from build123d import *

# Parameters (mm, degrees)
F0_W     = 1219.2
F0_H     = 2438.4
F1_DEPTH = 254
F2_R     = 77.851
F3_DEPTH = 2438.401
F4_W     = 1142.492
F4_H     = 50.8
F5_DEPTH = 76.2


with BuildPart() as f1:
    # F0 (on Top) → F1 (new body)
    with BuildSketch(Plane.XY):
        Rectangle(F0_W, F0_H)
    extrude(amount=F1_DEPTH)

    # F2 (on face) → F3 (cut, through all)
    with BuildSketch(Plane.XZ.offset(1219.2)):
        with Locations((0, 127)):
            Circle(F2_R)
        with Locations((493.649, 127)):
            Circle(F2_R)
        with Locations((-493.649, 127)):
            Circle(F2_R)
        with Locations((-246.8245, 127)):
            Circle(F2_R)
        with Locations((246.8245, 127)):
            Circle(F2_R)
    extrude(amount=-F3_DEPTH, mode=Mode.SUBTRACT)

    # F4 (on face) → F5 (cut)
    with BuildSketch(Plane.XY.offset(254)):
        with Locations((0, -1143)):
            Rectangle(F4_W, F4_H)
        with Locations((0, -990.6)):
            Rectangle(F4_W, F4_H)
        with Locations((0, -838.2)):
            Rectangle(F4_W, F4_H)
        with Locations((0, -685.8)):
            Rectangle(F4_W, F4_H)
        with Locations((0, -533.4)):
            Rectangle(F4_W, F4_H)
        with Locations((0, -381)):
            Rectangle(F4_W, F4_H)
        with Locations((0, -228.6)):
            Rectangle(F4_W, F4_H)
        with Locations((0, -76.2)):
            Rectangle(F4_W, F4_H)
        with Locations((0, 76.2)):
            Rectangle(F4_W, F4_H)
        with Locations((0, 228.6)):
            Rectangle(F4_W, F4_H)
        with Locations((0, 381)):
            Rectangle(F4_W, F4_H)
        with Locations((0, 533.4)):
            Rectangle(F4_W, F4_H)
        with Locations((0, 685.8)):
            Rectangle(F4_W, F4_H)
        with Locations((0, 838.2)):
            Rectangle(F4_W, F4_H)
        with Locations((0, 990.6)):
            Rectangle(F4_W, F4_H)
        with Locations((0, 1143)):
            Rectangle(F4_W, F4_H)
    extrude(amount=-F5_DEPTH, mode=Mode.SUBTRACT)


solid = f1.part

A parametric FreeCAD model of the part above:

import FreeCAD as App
import Part
import Sketcher

V = App.Vector
Q = App.Units.Quantity


def add_polygon(sketch, points):
    """Adds a closed chain of lines whose ends are joined by coincident constraints."""
    first, n = sketch.GeometryCount, len(points)
    for a, b in zip(points, points[1:] + points[:1]):
        sketch.addGeometry(Part.LineSegment(App.Vector(*a, 0), App.Vector(*b, 0)), False)
    for i in range(n):
        sketch.addConstraint(Sketcher.Constraint("Coincident", first + i, 2, first + (i + 1) % n, 1))

doc = App.newDocument("Part")
params = doc.addObject("Spreadsheet::Sheet", "Params")
for row, (alias, value) in enumerate([
    ("sketch1_width", "48 in"),
    ("sketch1_height", "96 in"),
    ("pad1_length", "10 in"),
    ("sketch2_diameter", "6.13 in"),
    ("sketch3_height", "2 in"),
    ("sketch3_width", "44.98 in"),
    ("pocket2_length", "3 in"),
], start=1):
    params.set(f"A{row}", alias)
    params.set(f"B{row}", "=" + value)
    params.setAlias(f"B{row}", alias)

body = doc.addObject("PartDesign::Body", "Body")

# Sketch on XY plane
sketch1 = doc.addObject("Sketcher::SketchObject", "Sketch")
body.addObject(sketch1)
sketch1.AttachmentSupport = (doc.XY_Plane, [""])
sketch1.MapMode = "FlatFace"
add_polygon(sketch1, [(-610, 1219), (-610, -1219), (610, -1219), (610, 1219)])  # lines 0-3
sketch1.addConstraint([
    Sketcher.Constraint("Vertical", 0),
    Sketcher.Constraint("Horizontal", 1),
    Sketcher.Constraint("Vertical", 2),
    Sketcher.Constraint("Horizontal", 3),
    Sketcher.Constraint("Symmetric", 0, 2, 2, 2, -1, 1),
    Sketcher.Constraint("DistanceX", 1, 1, 1, 2, Q("48 in")),
    Sketcher.Constraint("DistanceY", 0, 2, 0, 1, Q("96 in")),
])
sketch1.setExpression("Constraints[9]", "Params.sketch1_width")
sketch1.setExpression("Constraints[10]", "Params.sketch1_height")
pad1 = doc.addObject("PartDesign::Pad", "Pad")
body.addObject(pad1)
pad1.Profile = sketch1
pad1.setExpression("Length", "Params.pad1_length")

# Sketch on XZ plane
sketch2 = doc.addObject("Sketcher::SketchObject", "Sketch001")
body.addObject(sketch2)
sketch2.AttachmentSupport = (doc.XZ_Plane, [""])
sketch2.MapMode = "FlatFace"
sketch2.AttachmentOffset = App.Placement(V(0, 0, 48 * 25.4), App.Rotation())
sketch2.addGeometry([
    Part.Circle(V(0, 127, 0), V(0, 0, 1), 78),  # 0
    Part.Circle(V(494, 127, 0), V(0, 0, 1), 78),  # 1
    Part.Circle(V(-494, 127, 0), V(0, 0, 1), 78),  # 2
    Part.Circle(V(-247, 127, 0), V(0, 0, 1), 78),  # 3
    Part.Circle(V(247, 127, 0), V(0, 0, 1), 78),  # 4
], False)
sketch2.addConstraint([
    Sketcher.Constraint("Equal", 0, 1),
    Sketcher.Constraint("Equal", 1, 2),
    Sketcher.Constraint("Equal", 2, 3),
    Sketcher.Constraint("Equal", 3, 4),
    Sketcher.Constraint("Symmetric", 1, 3, 2, 3, -2),
    Sketcher.Constraint("Symmetric", 3, 3, 4, 3, -2),
    Sketcher.Constraint("PointOnObject", 0, 3, -2),
    Sketcher.Constraint("Horizontal", 0, 3, 1, 3),
    Sketcher.Constraint("Horizontal", 2, 3, 3, 3),
    Sketcher.Constraint("Diameter", 0, Q("6.13 in")),
    Sketcher.Constraint("DistanceY", -1, 1, 0, 3, Q("5 in")),
    Sketcher.Constraint("DistanceX", 2, 3, 1, 3, Q("38.87 in")),
    Sketcher.Constraint("DistanceX", 3, 3, 4, 3, Q("19.435 in")),
])
sketch2.setExpression("Constraints[9]", "Params.sketch2_diameter")
pocket1 = doc.addObject("PartDesign::Pocket", "Pocket")
body.addObject(pocket1)
pocket1.Profile = sketch2
pocket1.Type = "ThroughAll"

# Sketch on XY plane
sketch3 = doc.addObject("Sketcher::SketchObject", "Sketch002")
body.addObject(sketch3)
sketch3.AttachmentSupport = (doc.XY_Plane, [""])
sketch3.MapMode = "FlatFace"
sketch3.AttachmentOffset = App.Placement(V(0, 0, 10 * 25.4), App.Rotation())
add_polygon(sketch3, [(-571, -1118), (-571, -1168), (571, -1168), (571, -1118)])  # lines 0-3
add_polygon(sketch3, [(-571, -965), (-571, -1016), (571, -1016), (571, -965)])  # lines 4-7
add_polygon(sketch3, [(-571, -813), (-571, -864), (571, -864), (571, -813)])  # lines 8-11
add_polygon(sketch3, [(-571, -660), (-571, -711), (571, -711), (571, -660)])  # lines 12-15
add_polygon(sketch3, [(-571, -508), (-571, -559), (571, -559), (571, -508)])  # lines 16-19
add_polygon(sketch3, [(-571, -356), (-571, -406), (571, -406), (571, -356)])  # lines 20-23
add_polygon(sketch3, [(-571, -203), (-571, -254), (571, -254), (571, -203)])  # lines 24-27
add_polygon(sketch3, [(-571, -51), (-571, -102), (571, -102), (571, -51)])  # lines 28-31
add_polygon(sketch3, [(-571, 102), (-571, 51), (571, 51), (571, 102)])  # lines 32-35
add_polygon(sketch3, [(-571, 254), (-571, 203), (571, 203), (571, 254)])  # lines 36-39
add_polygon(sketch3, [(-571, 406), (-571, 356), (571, 356), (571, 406)])  # lines 40-43
add_polygon(sketch3, [(-571, 559), (-571, 508), (571, 508), (571, 559)])  # lines 44-47
add_polygon(sketch3, [(-571, 711), (-571, 660), (571, 660), (571, 711)])  # lines 48-51
add_polygon(sketch3, [(-571, 864), (-571, 813), (571, 813), (571, 864)])  # lines 52-55
add_polygon(sketch3, [(-571, 1016), (-571, 965), (571, 965), (571, 1016)])  # lines 56-59
add_polygon(sketch3, [(-571, 1168), (-571, 1118), (571, 1118), (571, 1168)])  # lines 60-63
sketch3.addConstraint([
    Sketcher.Constraint("Vertical", 0),
    Sketcher.Constraint("Horizontal", 1),
    Sketcher.Constraint("Vertical", 2),
    Sketcher.Constraint("Horizontal", 3),
    Sketcher.Constraint("Vertical", 4),
    Sketcher.Constraint("Horizontal", 5),
    Sketcher.Constraint("Vertical", 6),
    Sketcher.Constraint("Horizontal", 7),
    Sketcher.Constraint("Vertical", 8),
    Sketcher.Constraint("Horizontal", 9),
    Sketcher.Constraint("Vertical", 10),
    Sketcher.Constraint("Horizontal", 11),
    Sketcher.Constraint("Vertical", 12),
    Sketcher.Constraint("Horizontal", 13),
    Sketcher.Constraint("Vertical", 14),
    Sketcher.Constraint("Horizontal", 15),
    Sketcher.Constraint("Vertical", 16),
    Sketcher.Constraint("Horizontal", 17),
    Sketcher.Constraint("Vertical", 18),
    Sketcher.Constraint("Horizontal", 19),
    Sketcher.Constraint("Vertical", 20),
    Sketcher.Constraint("Horizontal", 21),
    Sketcher.Constraint("Vertical", 22),
    Sketcher.Constraint("Horizontal", 23),
    Sketcher.Constraint("Vertical", 24),
    Sketcher.Constraint("Horizontal", 25),
    Sketcher.Constraint("Vertical", 26),
    Sketcher.Constraint("Horizontal", 27),
    Sketcher.Constraint("Vertical", 28),
    Sketcher.Constraint("Horizontal", 29),
    Sketcher.Constraint("Vertical", 30),
    Sketcher.Constraint("Horizontal", 31),
    Sketcher.Constraint("Vertical", 32),
    Sketcher.Constraint("Horizontal", 33),
    Sketcher.Constraint("Vertical", 34),
    Sketcher.Constraint("Horizontal", 35),
    Sketcher.Constraint("Vertical", 36),
    Sketcher.Constraint("Horizontal", 37),
    Sketcher.Constraint("Vertical", 38),
    Sketcher.Constraint("Horizontal", 39),
    Sketcher.Constraint("Vertical", 40),
    Sketcher.Constraint("Horizontal", 41),
    Sketcher.Constraint("Vertical", 42),
    Sketcher.Constraint("Horizontal", 43),
    Sketcher.Constraint("Vertical", 44),
    Sketcher.Constraint("Horizontal", 45),
    Sketcher.Constraint("Vertical", 46),
    Sketcher.Constraint("Horizontal", 47),
    Sketcher.Constraint("Vertical", 48),
    Sketcher.Constraint("Horizontal", 49),
    Sketcher.Constraint("Vertical", 50),
    Sketcher.Constraint("Horizontal", 51),
    Sketcher.Constraint("Vertical", 52),
    Sketcher.Constraint("Horizontal", 53),
    Sketcher.Constraint("Vertical", 54),
    Sketcher.Constraint("Horizontal", 55),
    Sketcher.Constraint("Vertical", 56),
    Sketcher.Constraint("Horizontal", 57),
    Sketcher.Constraint("Vertical", 58),
    Sketcher.Constraint("Horizontal", 59),
    Sketcher.Constraint("Vertical", 60),
    Sketcher.Constraint("Horizontal", 61),
    Sketcher.Constraint("Vertical", 62),
    Sketcher.Constraint("Horizontal", 63),
    Sketcher.Constraint("Symmetric", 30, 2, 32, 2, -1, 1),
    Sketcher.Constraint("Symmetric", 28, 2, 34, 2, -1, 1),
    Sketcher.Constraint("Symmetric", 26, 2, 36, 2, -1, 1),
    Sketcher.Constraint("Symmetric", 24, 2, 38, 2, -1, 1),
    Sketcher.Constraint("Symmetric", 22, 2, 40, 2, -1, 1),
    Sketcher.Constraint("Symmetric", 20, 2, 42, 2, -1, 1),
    Sketcher.Constraint("Symmetric", 18, 2, 44, 2, -1, 1),
    Sketcher.Constraint("Symmetric", 16, 2, 46, 2, -1, 1),
    Sketcher.Constraint("Symmetric", 14, 2, 48, 2, -1, 1),
    Sketcher.Constraint("Symmetric", 12, 2, 50, 2, -1, 1),
    Sketcher.Constraint("Symmetric", 10, 2, 52, 2, -1, 1),
    Sketcher.Constraint("Symmetric", 8, 2, 54, 2, -1, 1),
    Sketcher.Constraint("Symmetric", 6, 2, 56, 2, -1, 1),
    Sketcher.Constraint("Symmetric", 4, 2, 58, 2, -1, 1),
    Sketcher.Constraint("Symmetric", 2, 2, 60, 2, -1, 1),
    Sketcher.Constraint("Symmetric", 0, 2, 62, 2, -1, 1),
    Sketcher.Constraint("Vertical", 3, 2, 4, 2),
    Sketcher.Constraint("Vertical", 2, 2, 5, 2),
    Sketcher.Constraint("Vertical", 7, 2, 8, 2),
    Sketcher.Constraint("Vertical", 6, 2, 9, 2),
    Sketcher.Constraint("Vertical", 11, 2, 12, 2),
    Sketcher.Constraint("Vertical", 10, 2, 13, 2),
    Sketcher.Constraint("Vertical", 15, 2, 16, 2),
    Sketcher.Constraint("Vertical", 14, 2, 17, 2),
    Sketcher.Constraint("Vertical", 19, 2, 20, 2),
    Sketcher.Constraint("Vertical", 18, 2, 21, 2),
    Sketcher.Constraint("Vertical", 23, 2, 24, 2),
    Sketcher.Constraint("Vertical", 22, 2, 25, 2),
    Sketcher.Constraint("Vertical", 27, 2, 28, 2),
    Sketcher.Constraint("Vertical", 26, 2, 29, 2),
    Sketcher.Constraint("Vertical", 31, 2, 32, 2),
    Sketcher.Constraint("Equal", 2, 4),
    Sketcher.Constraint("Equal", 6, 8),
    Sketcher.Constraint("Equal", 10, 12),
    Sketcher.Constraint("Equal", 14, 16),
    Sketcher.Constraint("Equal", 18, 20),
    Sketcher.Constraint("Equal", 22, 24),
    Sketcher.Constraint("Equal", 26, 28),
    Sketcher.Constraint("DistanceY", 0, 2, 0, 1, Q("2 in")),
    Sketcher.Constraint("DistanceY", 0, 2, -1, 1, Q("46 in")),
    Sketcher.Constraint("DistanceY", 4, 2, -1, 1, Q("40 in")),
    Sketcher.Constraint("DistanceY", 8, 2, -1, 1, Q("34 in")),
    Sketcher.Constraint("DistanceY", 12, 2, -1, 1, Q("28 in")),
    Sketcher.Constraint("DistanceY", 16, 2, -1, 1, Q("22 in")),
    Sketcher.Constraint("DistanceY", 20, 2, -1, 1, Q("16 in")),
    Sketcher.Constraint("DistanceY", 24, 2, -1, 1, Q("10 in")),
    Sketcher.Constraint("DistanceY", 28, 2, -1, 1, Q("4 in")),
    Sketcher.Constraint("DistanceX", 1, 1, 1, 2, Q("44.98 in")),
])
sketch3.setExpression("Constraints[166]", "Params.sketch3_height")
sketch3.setExpression("Constraints[175]", "Params.sketch3_width")
pocket2 = doc.addObject("PartDesign::Pocket", "Pocket001")
body.addObject(pocket2)
pocket2.Profile = sketch3
pocket2.setExpression("Length", "Params.pocket2_length")

doc.recompute()
